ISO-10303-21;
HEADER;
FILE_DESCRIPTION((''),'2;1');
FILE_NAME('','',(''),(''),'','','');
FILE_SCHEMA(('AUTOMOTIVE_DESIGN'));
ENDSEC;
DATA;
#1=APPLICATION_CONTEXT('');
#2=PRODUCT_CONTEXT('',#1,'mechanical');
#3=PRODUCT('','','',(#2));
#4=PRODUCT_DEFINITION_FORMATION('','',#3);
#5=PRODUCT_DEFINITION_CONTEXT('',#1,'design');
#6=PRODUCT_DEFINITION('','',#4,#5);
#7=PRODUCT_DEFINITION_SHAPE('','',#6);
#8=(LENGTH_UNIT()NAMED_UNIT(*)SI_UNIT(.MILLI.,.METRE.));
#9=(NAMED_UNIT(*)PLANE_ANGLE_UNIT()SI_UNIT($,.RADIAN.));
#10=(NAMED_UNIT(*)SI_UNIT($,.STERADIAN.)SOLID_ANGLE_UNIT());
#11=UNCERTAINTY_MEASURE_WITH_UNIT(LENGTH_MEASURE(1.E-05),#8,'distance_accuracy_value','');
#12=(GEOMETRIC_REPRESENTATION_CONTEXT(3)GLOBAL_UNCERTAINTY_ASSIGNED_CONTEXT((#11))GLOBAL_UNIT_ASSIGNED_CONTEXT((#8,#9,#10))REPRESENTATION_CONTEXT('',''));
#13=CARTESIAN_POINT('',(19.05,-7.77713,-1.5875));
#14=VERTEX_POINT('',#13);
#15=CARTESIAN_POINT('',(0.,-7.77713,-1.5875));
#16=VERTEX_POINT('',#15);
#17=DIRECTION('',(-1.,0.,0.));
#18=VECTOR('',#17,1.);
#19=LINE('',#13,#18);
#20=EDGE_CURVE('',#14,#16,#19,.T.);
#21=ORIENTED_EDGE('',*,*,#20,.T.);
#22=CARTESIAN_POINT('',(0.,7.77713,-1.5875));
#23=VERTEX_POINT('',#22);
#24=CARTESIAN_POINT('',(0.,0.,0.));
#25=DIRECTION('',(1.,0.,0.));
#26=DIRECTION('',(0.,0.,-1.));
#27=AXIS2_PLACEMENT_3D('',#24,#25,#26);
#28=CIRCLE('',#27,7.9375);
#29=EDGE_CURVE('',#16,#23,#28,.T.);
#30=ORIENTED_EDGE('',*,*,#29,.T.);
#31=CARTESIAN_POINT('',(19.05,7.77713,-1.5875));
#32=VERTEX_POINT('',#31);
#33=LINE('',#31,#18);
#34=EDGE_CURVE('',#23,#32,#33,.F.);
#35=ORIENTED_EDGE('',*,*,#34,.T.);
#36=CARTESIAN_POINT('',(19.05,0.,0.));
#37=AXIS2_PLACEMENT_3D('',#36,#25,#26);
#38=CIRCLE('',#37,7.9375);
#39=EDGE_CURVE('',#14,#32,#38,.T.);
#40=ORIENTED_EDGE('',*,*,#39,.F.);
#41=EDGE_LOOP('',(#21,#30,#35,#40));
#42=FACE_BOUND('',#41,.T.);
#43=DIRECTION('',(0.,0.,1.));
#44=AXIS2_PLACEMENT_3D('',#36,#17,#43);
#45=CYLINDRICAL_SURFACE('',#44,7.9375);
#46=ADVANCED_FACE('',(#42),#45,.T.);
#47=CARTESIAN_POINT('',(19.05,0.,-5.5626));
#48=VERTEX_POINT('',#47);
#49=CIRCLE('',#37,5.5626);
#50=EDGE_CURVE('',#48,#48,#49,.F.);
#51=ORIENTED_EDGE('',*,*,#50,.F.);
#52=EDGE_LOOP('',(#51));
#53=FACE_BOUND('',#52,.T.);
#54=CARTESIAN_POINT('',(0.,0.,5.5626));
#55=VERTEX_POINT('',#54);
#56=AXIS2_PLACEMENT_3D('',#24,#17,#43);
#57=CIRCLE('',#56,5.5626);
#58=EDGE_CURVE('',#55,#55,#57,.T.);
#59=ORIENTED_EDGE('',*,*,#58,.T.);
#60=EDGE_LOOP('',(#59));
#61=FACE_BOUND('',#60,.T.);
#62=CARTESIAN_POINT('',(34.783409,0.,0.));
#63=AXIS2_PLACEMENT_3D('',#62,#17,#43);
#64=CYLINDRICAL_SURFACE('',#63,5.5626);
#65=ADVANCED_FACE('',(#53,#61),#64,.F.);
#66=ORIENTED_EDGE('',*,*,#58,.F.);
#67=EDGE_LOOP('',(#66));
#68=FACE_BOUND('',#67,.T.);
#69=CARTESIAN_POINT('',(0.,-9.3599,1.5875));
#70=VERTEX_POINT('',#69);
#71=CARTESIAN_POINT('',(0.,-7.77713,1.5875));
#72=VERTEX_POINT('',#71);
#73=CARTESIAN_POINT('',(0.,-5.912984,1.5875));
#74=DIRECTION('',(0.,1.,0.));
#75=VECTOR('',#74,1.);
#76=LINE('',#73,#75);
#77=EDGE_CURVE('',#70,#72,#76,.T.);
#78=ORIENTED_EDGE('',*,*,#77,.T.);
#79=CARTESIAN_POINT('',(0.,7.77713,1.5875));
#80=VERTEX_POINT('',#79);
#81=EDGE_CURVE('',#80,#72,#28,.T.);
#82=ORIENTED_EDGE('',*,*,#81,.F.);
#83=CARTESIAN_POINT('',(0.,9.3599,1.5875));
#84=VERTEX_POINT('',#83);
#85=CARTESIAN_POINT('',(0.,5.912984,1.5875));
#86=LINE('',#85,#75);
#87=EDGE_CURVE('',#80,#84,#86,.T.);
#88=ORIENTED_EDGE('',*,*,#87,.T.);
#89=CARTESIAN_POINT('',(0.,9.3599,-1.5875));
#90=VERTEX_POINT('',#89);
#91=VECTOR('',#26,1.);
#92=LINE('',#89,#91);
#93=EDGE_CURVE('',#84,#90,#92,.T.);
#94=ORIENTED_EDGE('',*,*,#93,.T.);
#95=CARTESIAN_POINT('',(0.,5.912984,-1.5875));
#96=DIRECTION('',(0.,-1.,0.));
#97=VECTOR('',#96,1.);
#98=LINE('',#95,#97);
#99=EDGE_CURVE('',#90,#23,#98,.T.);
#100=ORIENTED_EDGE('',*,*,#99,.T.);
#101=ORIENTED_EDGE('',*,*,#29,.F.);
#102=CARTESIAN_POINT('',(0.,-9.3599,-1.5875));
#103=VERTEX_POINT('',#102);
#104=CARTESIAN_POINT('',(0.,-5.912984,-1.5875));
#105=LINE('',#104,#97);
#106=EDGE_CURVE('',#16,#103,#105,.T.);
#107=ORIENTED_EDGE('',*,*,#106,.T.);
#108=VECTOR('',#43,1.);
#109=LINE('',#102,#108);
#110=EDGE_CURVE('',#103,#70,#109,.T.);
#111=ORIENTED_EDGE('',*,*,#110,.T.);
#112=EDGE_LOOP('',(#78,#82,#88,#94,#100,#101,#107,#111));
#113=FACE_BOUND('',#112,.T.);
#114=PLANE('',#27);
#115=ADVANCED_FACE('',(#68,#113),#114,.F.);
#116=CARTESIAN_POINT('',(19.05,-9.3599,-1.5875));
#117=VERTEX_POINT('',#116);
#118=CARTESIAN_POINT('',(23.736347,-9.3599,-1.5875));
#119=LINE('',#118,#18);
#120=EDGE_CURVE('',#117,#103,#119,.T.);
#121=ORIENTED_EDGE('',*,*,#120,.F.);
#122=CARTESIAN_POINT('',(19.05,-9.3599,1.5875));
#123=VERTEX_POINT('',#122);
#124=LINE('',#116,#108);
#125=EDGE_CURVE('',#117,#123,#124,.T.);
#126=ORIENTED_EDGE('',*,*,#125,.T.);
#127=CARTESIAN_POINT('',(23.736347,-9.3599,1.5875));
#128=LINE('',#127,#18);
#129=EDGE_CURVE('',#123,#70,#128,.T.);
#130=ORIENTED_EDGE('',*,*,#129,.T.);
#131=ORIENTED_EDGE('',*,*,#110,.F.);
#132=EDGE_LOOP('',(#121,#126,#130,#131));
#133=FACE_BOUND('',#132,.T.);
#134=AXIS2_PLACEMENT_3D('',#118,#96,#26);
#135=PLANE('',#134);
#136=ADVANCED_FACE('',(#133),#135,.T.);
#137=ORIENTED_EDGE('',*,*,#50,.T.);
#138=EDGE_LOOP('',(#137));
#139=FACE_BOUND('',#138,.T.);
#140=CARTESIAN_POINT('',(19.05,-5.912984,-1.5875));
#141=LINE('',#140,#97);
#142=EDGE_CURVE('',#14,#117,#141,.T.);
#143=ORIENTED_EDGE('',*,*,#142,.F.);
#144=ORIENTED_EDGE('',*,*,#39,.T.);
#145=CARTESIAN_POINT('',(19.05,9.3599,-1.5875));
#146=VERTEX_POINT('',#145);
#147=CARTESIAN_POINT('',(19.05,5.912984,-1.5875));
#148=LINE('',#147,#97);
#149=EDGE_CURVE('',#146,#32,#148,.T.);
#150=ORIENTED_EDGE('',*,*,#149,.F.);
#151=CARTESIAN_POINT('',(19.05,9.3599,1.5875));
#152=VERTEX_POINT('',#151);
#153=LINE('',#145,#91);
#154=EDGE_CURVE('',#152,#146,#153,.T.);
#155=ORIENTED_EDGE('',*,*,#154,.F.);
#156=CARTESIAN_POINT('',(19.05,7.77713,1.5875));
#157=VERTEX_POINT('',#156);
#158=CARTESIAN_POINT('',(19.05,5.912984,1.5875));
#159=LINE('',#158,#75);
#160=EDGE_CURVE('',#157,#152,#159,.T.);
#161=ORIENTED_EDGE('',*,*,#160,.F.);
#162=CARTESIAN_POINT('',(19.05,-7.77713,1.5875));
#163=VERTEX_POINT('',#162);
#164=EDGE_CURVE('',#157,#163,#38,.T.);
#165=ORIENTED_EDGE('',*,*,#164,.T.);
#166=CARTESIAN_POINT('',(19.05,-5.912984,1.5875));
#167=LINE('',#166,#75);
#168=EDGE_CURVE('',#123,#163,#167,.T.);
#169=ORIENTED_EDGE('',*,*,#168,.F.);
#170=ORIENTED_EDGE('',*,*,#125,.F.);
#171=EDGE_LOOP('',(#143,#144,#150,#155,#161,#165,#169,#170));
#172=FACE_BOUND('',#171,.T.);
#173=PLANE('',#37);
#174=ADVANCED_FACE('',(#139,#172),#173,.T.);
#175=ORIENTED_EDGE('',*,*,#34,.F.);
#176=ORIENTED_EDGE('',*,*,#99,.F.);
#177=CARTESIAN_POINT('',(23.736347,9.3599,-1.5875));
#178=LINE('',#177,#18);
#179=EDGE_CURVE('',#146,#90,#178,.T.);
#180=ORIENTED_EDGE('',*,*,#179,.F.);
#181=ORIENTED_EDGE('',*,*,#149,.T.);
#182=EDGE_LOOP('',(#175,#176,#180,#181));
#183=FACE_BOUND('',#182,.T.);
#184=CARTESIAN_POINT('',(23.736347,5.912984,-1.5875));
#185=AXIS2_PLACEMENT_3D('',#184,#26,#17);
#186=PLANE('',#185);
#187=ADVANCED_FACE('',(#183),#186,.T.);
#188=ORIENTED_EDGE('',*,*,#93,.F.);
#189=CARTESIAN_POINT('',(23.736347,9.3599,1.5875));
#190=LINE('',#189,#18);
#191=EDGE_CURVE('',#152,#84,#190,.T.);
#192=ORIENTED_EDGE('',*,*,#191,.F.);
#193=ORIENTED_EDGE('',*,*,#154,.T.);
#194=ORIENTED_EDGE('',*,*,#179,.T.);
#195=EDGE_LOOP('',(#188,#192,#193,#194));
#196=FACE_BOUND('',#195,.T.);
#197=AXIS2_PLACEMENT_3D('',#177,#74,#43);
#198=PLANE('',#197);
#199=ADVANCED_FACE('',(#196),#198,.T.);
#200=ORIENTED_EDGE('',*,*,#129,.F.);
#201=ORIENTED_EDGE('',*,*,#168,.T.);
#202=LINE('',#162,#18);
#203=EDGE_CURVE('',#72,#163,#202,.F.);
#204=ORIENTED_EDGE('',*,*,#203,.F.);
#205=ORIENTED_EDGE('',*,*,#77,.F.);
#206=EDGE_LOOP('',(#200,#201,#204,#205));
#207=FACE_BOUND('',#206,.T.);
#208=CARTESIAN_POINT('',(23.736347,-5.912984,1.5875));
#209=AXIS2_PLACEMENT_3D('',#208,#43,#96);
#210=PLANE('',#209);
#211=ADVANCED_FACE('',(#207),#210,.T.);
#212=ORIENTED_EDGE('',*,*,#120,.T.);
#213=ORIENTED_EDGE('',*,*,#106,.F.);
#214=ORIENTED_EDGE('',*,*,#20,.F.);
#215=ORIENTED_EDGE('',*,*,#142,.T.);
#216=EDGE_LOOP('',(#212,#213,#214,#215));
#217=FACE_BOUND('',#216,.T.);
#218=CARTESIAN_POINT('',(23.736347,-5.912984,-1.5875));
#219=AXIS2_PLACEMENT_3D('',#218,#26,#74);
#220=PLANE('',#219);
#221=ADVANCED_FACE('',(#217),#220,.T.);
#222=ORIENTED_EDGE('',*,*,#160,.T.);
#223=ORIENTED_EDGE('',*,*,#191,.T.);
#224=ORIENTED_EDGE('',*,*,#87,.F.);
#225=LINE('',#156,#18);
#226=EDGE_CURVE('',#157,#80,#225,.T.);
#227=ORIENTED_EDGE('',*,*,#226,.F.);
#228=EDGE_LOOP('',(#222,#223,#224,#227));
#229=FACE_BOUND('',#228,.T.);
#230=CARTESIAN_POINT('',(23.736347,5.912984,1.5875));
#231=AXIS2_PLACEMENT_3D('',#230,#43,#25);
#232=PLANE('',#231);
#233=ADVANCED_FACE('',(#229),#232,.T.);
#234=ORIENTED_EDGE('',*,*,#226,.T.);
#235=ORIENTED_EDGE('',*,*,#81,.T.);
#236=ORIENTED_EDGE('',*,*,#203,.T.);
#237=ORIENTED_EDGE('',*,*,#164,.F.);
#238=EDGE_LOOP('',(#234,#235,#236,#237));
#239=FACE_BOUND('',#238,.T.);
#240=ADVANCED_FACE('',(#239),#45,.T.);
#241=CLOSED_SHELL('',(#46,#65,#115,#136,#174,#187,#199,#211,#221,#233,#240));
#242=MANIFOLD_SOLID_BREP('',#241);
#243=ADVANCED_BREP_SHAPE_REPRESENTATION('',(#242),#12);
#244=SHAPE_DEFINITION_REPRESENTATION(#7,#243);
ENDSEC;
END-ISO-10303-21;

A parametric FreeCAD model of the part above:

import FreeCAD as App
import Part
import Sketcher
from FreeCAD import Vector
Q = App.Units.Quantity

doc = App.newDocument("Part")
body = doc.addObject("PartDesign::Body", "Body")

sketch1 = doc.addObject("Sketcher::SketchObject", "Sketch")
body.addObject(sketch1)
sketch1.AttachmentSupport = (doc.YZ_Plane, [""])
sketch1.MapMode = "FlatFace"
sketch1.addGeometry(Part.Circle(Vector(0, 0, 0), Vector(0, 0, 1), 8), False)
sketch1.addConstraint([
    Sketcher.Constraint("Coincident", 0, 3, -1, 1),
    Sketcher.Constraint("Diameter", 0, Q("0.625 in")),
])
pad1 = doc.addObject("PartDesign::Pad", "Pad")
body.addObject(pad1)
pad1.Profile = sketch1
pad1.Length = Q("0.75 in")

sketch2 = doc.addObject("Sketcher::SketchObject", "Sketch001")
body.addObject(sketch2)
sketch2.AttachmentSupport = (doc.YZ_Plane, [""])
sketch2.MapMode = "FlatFace"
sketch2.addGeometry([
    Part.LineSegment(Vector(9.4, -1.6, 0), Vector(5.9, -1.6, 0)),
    Part.LineSegment(Vector(5.9, -1.6, 0), Vector(5.9, 1.6, 0)),
    Part.LineSegment(Vector(5.9, 1.6, 0), Vector(9.4, 1.6, 0)),
    Part.LineSegment(Vector(9.4, 1.6, 0), Vector(9.4, -1.6, 0)),
    Part.LineSegment(Vector(-5.9, -1.6, 0), Vector(-9.4, -1.6, 0)),
    Part.LineSegment(Vector(-9.4, -1.6, 0), Vector(-9.4, 1.6, 0)),
    Part.LineSegment(Vector(-9.4, 1.6, 0), Vector(-5.9, 1.6, 0)),
    Part.LineSegment(Vector(-5.9, 1.6, 0), Vector(-5.9, -1.6, 0)),
], False)
sketch2.addConstraint([
    Sketcher.Constraint("Coincident", 0, 2, 1, 1),
    Sketcher.Constraint("Coincident", 1, 2, 2, 1),
    Sketcher.Constraint("Coincident", 2, 2, 3, 1),
    Sketcher.Constraint("Coincident", 3, 2, 0, 1),
    Sketcher.Constraint("Coincident", 4, 2, 5, 1),
    Sketcher.Constraint("Coincident", 5, 2, 6, 1),
    Sketcher.Constraint("Coincident", 6, 2, 7, 1),
    Sketcher.Constraint("Coincident", 7, 2, 4, 1),
    Sketcher.Constraint("Horizontal", 0),
    Sketcher.Constraint("Vertical", 1),
    Sketcher.Constraint("Horizontal", 2),
    Sketcher.Constraint("Vertical", 3),
    Sketcher.Constraint("Horizontal", 4),
    Sketcher.Constraint("Vertical", 5),
    Sketcher.Constraint("Horizontal", 6),
    Sketcher.Constraint("Vertical", 7),
    Sketcher.Constraint("Symmetric", 2, 2, 4, 2, -1, 1),
    Sketcher.Constraint("Symmetric", 0, 2, 6, 2, -1, 1),
    Sketcher.Constraint("Horizontal", 3, 2, 4, 2),
    Sketcher.Constraint("DistanceY", 1, 1, 1, 2, Q("0.125 in")),
    Sketcher.Constraint("DistanceX", 4, 2, 3, 2, Q("0.737 in")),
    Sketcher.Constraint("DistanceX", 0, 2, 0, 1, 3.446916),
])
pad2 = doc.addObject("PartDesign::Pad", "Pad001")
body.addObject(pad2)
pad2.Profile = sketch2
pad2.Length = Q("0.75 in")

sketch3 = doc.addObject("Sketcher::SketchObject", "Sketch002")
body.addObject(sketch3)
sketch3.AttachmentSupport = (doc.YZ_Plane, [""])
sketch3.MapMode = "FlatFace"
sketch3.addGeometry(Part.Circle(Vector(0, 0, 0), Vector(0, 0, 1), 6), False)
sketch3.addConstraint([
    Sketcher.Constraint("Coincident", 0, 3, -1, 1),
    Sketcher.Constraint("Diameter", 0, Q("0.438 in")),
])
pocket1 = doc.addObject("PartDesign::Pocket", "Pocket")
body.addObject(pocket1)
pocket1.Profile = sketch3
pocket1.Length = Q("0.75 in")
pocket1.Reversed = True

doc.recompute()
